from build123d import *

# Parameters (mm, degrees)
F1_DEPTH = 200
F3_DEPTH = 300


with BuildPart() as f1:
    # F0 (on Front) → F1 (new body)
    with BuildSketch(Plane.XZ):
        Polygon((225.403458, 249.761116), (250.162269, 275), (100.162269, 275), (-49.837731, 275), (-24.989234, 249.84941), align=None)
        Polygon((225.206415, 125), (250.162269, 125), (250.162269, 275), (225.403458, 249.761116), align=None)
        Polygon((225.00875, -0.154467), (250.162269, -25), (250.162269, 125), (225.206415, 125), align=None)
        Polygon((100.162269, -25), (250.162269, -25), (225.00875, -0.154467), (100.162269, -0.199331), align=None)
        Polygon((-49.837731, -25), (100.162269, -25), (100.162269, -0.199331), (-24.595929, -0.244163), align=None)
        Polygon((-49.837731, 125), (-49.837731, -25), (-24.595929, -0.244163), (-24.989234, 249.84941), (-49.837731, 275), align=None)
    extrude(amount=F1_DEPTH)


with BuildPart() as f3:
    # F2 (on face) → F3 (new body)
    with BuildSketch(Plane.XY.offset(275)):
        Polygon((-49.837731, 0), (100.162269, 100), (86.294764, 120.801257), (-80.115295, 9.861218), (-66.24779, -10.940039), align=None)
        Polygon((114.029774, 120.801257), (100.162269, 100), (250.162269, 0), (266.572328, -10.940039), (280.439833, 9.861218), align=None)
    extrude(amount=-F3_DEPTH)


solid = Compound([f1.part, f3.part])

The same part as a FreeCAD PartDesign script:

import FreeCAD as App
import Part
import Sketcher
from FreeCAD import Vector

doc = App.newDocument("Part")
params = doc.addObject("Spreadsheet::Sheet", "Params")
for row, (alias, value) in enumerate([
    ("sketch1_width", "300 mm"),
    ("pad1_length", "200 mm"),
    ("sketch2_length", "25 mm"),
    ("sketch2_length2", "200 mm"),
    ("pad2_length", "300 mm"),
], start=1):
    params.set(f"A{row}", alias)
    params.set(f"B{row}", "=" + value)
    params.setAlias(f"B{row}", alias)

body = doc.addObject("PartDesign::Body", "Body")

# Sketch on XZ plane
sketch1 = doc.addObject("Sketcher::SketchObject", "Sketch")
body.addObject(sketch1)
sketch1.AttachmentSupport = (doc.XZ_Plane, [""])
sketch1.MapMode = "FlatFace"
sketch1.addGeometry(Part.LineSegment(Vector(250.162269, 275, 0), Vector(-49.837731, 275, 0)), False)
sketch1.addGeometry(Part.LineSegment(Vector(-49.837731, 275, 0), Vector(-49.837731, -25, 0)), False)
sketch1.addGeometry(Part.LineSegment(Vector(-49.837731, -25, 0), Vector(250.162269, -25, 0)), False)
sketch1.addGeometry(Part.LineSegment(Vector(250.162269, -25, 0), Vector(250.162269, 275, 0)), False)
sketch1.addGeometry(Part.LineSegment(Vector(-24.989234, 249.84941, 0), Vector(225.403458, 249.761116, 0)), False)
sketch1.addGeometry(Part.LineSegment(Vector(225.403458, 249.761116, 0), Vector(225.206415, 125, 0)), False)
sketch1.addGeometry(Part.LineSegment(Vector(225.206415, 125, 0), Vector(225.00875, -0.154467, 0)), False)
sketch1.addGeometry(Part.LineSegment(Vector(225.00875, -0.154467, 0), Vector(100.162269, -0.199331, 0)), False)
sketch1.addGeometry(Part.LineSegment(Vector(100.162269, -0.199331, 0), Vector(-24.595929, -0.244163, 0)), False)
sketch1.addGeometry(Part.LineSegment(Vector(-24.595929, -0.244163, 0), Vector(-24.989234, 249.84941, 0)), False)
sketch1.addConstraint(Sketcher.Constraint("Coincident", 0, 2, 1, 1))
sketch1.addConstraint(Sketcher.Constraint("Coincident", 1, 2, 2, 1))
sketch1.addConstraint(Sketcher.Constraint("Coincident", 2, 2, 3, 1))
sketch1.addConstraint(Sketcher.Constraint("Coincident", 3, 2, 0, 1))
sketch1.addConstraint(Sketcher.Constraint("Coincident", 4, 2, 5, 1))
sketch1.addConstraint(Sketcher.Constraint("Coincident", 5, 2, 6, 1))
sketch1.addConstraint(Sketcher.Constraint("Coincident", 6, 2, 7, 1))
sketch1.addConstraint(Sketcher.Constraint("Coincident", 7, 2, 8, 1))
sketch1.addConstraint(Sketcher.Constraint("Coincident", 8, 2, 9, 1))
sketch1.addConstraint(Sketcher.Constraint("Coincident", 9, 2, 4, 1))
sketch1.addConstraint(Sketcher.Constraint("Horizontal", 0))
sketch1.addConstraint(Sketcher.Constraint("Vertical", 1))
sketch1.addConstraint(Sketcher.Constraint("Horizontal", 2))
sketch1.addConstraint(Sketcher.Constraint("Vertical", 3))
sketch1.addConstraint(Sketcher.Constraint("Parallel", 5, 6))
sketch1.addConstraint(Sketcher.Constraint("Parallel", 7, 8))
sketch1.addConstraint(Sketcher.Constraint("Equal", 2, 1))
sketch1.addConstraint(Sketcher.Constraint("DistanceX", 0, 2, 0, 1, 300.0))
sketch1.addConstraint(Sketcher.Constraint("DistanceY", -1, 1, 0, 2, 275.0))
sketch1.addConstraint(Sketcher.Constraint("DistanceY", -1, 1, 5, 2, 125.0))
sketch1.addConstraint(Sketcher.Constraint("DistanceX", 1, 2, 7, 2, 150.0))
sketch1.addConstraint(Sketcher.Constraint("DistanceX", 1, 2, 8, 2, 25.241802))
sketch1.addConstraint(Sketcher.Constraint("Distance", 5, 124.761272))
sketch1.addConstraint(Sketcher.Constraint("Distance", 7, 124.846489))
sketch1.addConstraint(Sketcher.Constraint("DistanceX", 0, 2, -1, 1, 49.837731))
sketch1.addConstraint(Sketcher.Constraint("DistanceX", -1, 1, 4, 2, 225.403458))
sketch1.addConstraint(Sketcher.Constraint("DistanceY", 7, 2, -1, 1, 0.199331))
sketch1.addConstraint(Sketcher.Constraint("DistanceY", -1, 1, 9, 2, 249.84941))
sketch1.addConstraint(Sketcher.Constraint("DistanceY", 8, 2, 7, 2, 0.044832))
sketch1.addConstraint(Sketcher.Constraint("Distance", 4, 250.392708))
sketch1.setExpression("Constraints[17]", "Params.sketch1_width")
pad1 = doc.addObject("PartDesign::Pad", "Pad")
body.addObject(pad1)
pad1.Profile = sketch1
pad1.setExpression("Length", "Params.pad1_length")
body2 = doc.addObject("PartDesign::Body", "Body001")
body2.AllowCompound = True

# Sketch on XY plane
sketch2 = doc.addObject("Sketcher::SketchObject", "Sketch001")
body2.addObject(sketch2)
sketch2.AttachmentSupport = (doc.getObject("XY_Plane001"), [""])
sketch2.MapMode = "FlatFace"
sketch2.AttachmentOffset = App.Placement(Vector(0, 0, 275), App.Rotation())
sketch2.addGeometry(Part.LineSegment(Vector(-49.837731, 0, 0), Vector(100.162269, 100, 0)), False)
sketch2.addGeometry(Part.LineSegment(Vector(100.162269, 100, 0), Vector(86.294764, 120.801257, 0)), False)
sketch2.addGeometry(Part.LineSegment(Vector(86.294764, 120.801257, 0), Vector(-80.115295, 9.861218, 0)), False)
sketch2.addGeometry(Part.LineSegment(Vector(-80.115295, 9.861218, 0), Vector(-66.24779, -10.940039, 0)), False)
sketch2.addGeometry(Part.LineSegment(Vector(-66.24779, -10.940039, 0), Vector(-49.837731, 0, 0)), False)
sketch2.addGeometry(Part.LineSegment(Vector(114.029774, 120.801257, 0), Vector(100.162269, 100, 0)), False)
sketch2.addGeometry(Part.LineSegment(Vector(100.162269, 100, 0), Vector(250.162269, 0, 0)), False)
sketch2.addGeometry(Part.LineSegment(Vector(250.162269, 0, 0), Vector(266.572328, -10.940039, 0)), False)
sketch2.addGeometry(Part.LineSegment(Vector(266.572328, -10.940039, 0), Vector(280.439833, 9.861218, 0)), False)
sketch2.addGeometry(Part.LineSegment(Vector(280.439833, 9.861218, 0), Vector(114.029774, 120.801257, 0)), False)
sketch2.addConstraint(Sketcher.Constraint("Coincident", 0, 2, 1, 1))
sketch2.addConstraint(Sketcher.Constraint("Coincident", 1, 2, 2, 1))
sketch2.addConstraint(Sketcher.Constraint("Coincident", 2, 2, 3, 1))
sketch2.addConstraint(Sketcher.Constraint("Coincident", 3, 2, 4, 1))
sketch2.addConstraint(Sketcher.Constraint("Coincident", 4, 2, 0, 1))
sketch2.addConstraint(Sketcher.Constraint("Coincident", 5, 2, 6, 1))
sketch2.addConstraint(Sketcher.Constraint("Coincident", 6, 2, 7, 1))
sketch2.addConstraint(Sketcher.Constraint("Coincident", 7, 2, 8, 1))
sketch2.addConstraint(Sketcher.Constraint("Coincident", 8, 2, 9, 1))
sketch2.addConstraint(Sketcher.Constraint("Coincident", 9, 2, 5, 1))
sketch2.addConstraint(Sketcher.Constraint("Coincident", 5, 2, 0, 2))
sketch2.addConstraint(Sketcher.Constraint("PointOnObject", 4, 2, -1))
sketch2.addConstraint(Sketcher.Constraint("PointOnObject", 6, 2, -1))
sketch2.addConstraint(Sketcher.Constraint("Perpendicular", 0, 1))
sketch2.addConstraint(Sketcher.Constraint("Perpendicular", 1, 2))
sketch2.addConstraint(Sketcher.Constraint("Perpendicular", 2, 3))
sketch2.addConstraint(Sketcher.Constraint("Perpendicular", 3, 4))
sketch2.addConstraint(Sketcher.Constraint("Perpendicular", 5, 6))
sketch2.addConstraint(Sketcher.Constraint("Parallel", 6, 7))
sketch2.addConstraint(Sketcher.Constraint("Perpendicular", 7, 8))
sketch2.addConstraint(Sketcher.Constraint("Perpendicular", 8, 9))
sketch2.addConstraint(Sketcher.Constraint("Horizontal", 3, 2, 7, 2))
sketch2.addConstraint(Sketcher.Constraint("Horizontal", 2, 2, 8, 2))
sketch2.addConstraint(Sketcher.Constraint("Equal", 3, 5))
sketch2.addConstraint(Sketcher.Constraint("Distance", 1, 25.0))
sketch2.addConstraint(Sketcher.Constraint("Distance", 2, 200.0))
sketch2.addConstraint(Sketcher.Constraint("DistanceY", -1, 1, 0, 2, 100.0))
sketch2.addConstraint(Sketcher.Constraint("DistanceX", 4, 2, 0, 2, 150.0))
sketch2.addConstraint(Sketcher.Constraint("DistanceX", -1, 1, 0, 2, 100.162269))
sketch2.setExpression("Constraints[24]", "Params.sketch2_length")
sketch2.setExpression("Constraints[25]", "Params.sketch2_length2")
pad2 = doc.addObject("PartDesign::Pad", "Pad001")
body2.addObject(pad2)
pad2.Profile = sketch2
pad2.setExpression("Length", "Params.pad2_length")
pad2.Reversed = True

doc.recompute()
